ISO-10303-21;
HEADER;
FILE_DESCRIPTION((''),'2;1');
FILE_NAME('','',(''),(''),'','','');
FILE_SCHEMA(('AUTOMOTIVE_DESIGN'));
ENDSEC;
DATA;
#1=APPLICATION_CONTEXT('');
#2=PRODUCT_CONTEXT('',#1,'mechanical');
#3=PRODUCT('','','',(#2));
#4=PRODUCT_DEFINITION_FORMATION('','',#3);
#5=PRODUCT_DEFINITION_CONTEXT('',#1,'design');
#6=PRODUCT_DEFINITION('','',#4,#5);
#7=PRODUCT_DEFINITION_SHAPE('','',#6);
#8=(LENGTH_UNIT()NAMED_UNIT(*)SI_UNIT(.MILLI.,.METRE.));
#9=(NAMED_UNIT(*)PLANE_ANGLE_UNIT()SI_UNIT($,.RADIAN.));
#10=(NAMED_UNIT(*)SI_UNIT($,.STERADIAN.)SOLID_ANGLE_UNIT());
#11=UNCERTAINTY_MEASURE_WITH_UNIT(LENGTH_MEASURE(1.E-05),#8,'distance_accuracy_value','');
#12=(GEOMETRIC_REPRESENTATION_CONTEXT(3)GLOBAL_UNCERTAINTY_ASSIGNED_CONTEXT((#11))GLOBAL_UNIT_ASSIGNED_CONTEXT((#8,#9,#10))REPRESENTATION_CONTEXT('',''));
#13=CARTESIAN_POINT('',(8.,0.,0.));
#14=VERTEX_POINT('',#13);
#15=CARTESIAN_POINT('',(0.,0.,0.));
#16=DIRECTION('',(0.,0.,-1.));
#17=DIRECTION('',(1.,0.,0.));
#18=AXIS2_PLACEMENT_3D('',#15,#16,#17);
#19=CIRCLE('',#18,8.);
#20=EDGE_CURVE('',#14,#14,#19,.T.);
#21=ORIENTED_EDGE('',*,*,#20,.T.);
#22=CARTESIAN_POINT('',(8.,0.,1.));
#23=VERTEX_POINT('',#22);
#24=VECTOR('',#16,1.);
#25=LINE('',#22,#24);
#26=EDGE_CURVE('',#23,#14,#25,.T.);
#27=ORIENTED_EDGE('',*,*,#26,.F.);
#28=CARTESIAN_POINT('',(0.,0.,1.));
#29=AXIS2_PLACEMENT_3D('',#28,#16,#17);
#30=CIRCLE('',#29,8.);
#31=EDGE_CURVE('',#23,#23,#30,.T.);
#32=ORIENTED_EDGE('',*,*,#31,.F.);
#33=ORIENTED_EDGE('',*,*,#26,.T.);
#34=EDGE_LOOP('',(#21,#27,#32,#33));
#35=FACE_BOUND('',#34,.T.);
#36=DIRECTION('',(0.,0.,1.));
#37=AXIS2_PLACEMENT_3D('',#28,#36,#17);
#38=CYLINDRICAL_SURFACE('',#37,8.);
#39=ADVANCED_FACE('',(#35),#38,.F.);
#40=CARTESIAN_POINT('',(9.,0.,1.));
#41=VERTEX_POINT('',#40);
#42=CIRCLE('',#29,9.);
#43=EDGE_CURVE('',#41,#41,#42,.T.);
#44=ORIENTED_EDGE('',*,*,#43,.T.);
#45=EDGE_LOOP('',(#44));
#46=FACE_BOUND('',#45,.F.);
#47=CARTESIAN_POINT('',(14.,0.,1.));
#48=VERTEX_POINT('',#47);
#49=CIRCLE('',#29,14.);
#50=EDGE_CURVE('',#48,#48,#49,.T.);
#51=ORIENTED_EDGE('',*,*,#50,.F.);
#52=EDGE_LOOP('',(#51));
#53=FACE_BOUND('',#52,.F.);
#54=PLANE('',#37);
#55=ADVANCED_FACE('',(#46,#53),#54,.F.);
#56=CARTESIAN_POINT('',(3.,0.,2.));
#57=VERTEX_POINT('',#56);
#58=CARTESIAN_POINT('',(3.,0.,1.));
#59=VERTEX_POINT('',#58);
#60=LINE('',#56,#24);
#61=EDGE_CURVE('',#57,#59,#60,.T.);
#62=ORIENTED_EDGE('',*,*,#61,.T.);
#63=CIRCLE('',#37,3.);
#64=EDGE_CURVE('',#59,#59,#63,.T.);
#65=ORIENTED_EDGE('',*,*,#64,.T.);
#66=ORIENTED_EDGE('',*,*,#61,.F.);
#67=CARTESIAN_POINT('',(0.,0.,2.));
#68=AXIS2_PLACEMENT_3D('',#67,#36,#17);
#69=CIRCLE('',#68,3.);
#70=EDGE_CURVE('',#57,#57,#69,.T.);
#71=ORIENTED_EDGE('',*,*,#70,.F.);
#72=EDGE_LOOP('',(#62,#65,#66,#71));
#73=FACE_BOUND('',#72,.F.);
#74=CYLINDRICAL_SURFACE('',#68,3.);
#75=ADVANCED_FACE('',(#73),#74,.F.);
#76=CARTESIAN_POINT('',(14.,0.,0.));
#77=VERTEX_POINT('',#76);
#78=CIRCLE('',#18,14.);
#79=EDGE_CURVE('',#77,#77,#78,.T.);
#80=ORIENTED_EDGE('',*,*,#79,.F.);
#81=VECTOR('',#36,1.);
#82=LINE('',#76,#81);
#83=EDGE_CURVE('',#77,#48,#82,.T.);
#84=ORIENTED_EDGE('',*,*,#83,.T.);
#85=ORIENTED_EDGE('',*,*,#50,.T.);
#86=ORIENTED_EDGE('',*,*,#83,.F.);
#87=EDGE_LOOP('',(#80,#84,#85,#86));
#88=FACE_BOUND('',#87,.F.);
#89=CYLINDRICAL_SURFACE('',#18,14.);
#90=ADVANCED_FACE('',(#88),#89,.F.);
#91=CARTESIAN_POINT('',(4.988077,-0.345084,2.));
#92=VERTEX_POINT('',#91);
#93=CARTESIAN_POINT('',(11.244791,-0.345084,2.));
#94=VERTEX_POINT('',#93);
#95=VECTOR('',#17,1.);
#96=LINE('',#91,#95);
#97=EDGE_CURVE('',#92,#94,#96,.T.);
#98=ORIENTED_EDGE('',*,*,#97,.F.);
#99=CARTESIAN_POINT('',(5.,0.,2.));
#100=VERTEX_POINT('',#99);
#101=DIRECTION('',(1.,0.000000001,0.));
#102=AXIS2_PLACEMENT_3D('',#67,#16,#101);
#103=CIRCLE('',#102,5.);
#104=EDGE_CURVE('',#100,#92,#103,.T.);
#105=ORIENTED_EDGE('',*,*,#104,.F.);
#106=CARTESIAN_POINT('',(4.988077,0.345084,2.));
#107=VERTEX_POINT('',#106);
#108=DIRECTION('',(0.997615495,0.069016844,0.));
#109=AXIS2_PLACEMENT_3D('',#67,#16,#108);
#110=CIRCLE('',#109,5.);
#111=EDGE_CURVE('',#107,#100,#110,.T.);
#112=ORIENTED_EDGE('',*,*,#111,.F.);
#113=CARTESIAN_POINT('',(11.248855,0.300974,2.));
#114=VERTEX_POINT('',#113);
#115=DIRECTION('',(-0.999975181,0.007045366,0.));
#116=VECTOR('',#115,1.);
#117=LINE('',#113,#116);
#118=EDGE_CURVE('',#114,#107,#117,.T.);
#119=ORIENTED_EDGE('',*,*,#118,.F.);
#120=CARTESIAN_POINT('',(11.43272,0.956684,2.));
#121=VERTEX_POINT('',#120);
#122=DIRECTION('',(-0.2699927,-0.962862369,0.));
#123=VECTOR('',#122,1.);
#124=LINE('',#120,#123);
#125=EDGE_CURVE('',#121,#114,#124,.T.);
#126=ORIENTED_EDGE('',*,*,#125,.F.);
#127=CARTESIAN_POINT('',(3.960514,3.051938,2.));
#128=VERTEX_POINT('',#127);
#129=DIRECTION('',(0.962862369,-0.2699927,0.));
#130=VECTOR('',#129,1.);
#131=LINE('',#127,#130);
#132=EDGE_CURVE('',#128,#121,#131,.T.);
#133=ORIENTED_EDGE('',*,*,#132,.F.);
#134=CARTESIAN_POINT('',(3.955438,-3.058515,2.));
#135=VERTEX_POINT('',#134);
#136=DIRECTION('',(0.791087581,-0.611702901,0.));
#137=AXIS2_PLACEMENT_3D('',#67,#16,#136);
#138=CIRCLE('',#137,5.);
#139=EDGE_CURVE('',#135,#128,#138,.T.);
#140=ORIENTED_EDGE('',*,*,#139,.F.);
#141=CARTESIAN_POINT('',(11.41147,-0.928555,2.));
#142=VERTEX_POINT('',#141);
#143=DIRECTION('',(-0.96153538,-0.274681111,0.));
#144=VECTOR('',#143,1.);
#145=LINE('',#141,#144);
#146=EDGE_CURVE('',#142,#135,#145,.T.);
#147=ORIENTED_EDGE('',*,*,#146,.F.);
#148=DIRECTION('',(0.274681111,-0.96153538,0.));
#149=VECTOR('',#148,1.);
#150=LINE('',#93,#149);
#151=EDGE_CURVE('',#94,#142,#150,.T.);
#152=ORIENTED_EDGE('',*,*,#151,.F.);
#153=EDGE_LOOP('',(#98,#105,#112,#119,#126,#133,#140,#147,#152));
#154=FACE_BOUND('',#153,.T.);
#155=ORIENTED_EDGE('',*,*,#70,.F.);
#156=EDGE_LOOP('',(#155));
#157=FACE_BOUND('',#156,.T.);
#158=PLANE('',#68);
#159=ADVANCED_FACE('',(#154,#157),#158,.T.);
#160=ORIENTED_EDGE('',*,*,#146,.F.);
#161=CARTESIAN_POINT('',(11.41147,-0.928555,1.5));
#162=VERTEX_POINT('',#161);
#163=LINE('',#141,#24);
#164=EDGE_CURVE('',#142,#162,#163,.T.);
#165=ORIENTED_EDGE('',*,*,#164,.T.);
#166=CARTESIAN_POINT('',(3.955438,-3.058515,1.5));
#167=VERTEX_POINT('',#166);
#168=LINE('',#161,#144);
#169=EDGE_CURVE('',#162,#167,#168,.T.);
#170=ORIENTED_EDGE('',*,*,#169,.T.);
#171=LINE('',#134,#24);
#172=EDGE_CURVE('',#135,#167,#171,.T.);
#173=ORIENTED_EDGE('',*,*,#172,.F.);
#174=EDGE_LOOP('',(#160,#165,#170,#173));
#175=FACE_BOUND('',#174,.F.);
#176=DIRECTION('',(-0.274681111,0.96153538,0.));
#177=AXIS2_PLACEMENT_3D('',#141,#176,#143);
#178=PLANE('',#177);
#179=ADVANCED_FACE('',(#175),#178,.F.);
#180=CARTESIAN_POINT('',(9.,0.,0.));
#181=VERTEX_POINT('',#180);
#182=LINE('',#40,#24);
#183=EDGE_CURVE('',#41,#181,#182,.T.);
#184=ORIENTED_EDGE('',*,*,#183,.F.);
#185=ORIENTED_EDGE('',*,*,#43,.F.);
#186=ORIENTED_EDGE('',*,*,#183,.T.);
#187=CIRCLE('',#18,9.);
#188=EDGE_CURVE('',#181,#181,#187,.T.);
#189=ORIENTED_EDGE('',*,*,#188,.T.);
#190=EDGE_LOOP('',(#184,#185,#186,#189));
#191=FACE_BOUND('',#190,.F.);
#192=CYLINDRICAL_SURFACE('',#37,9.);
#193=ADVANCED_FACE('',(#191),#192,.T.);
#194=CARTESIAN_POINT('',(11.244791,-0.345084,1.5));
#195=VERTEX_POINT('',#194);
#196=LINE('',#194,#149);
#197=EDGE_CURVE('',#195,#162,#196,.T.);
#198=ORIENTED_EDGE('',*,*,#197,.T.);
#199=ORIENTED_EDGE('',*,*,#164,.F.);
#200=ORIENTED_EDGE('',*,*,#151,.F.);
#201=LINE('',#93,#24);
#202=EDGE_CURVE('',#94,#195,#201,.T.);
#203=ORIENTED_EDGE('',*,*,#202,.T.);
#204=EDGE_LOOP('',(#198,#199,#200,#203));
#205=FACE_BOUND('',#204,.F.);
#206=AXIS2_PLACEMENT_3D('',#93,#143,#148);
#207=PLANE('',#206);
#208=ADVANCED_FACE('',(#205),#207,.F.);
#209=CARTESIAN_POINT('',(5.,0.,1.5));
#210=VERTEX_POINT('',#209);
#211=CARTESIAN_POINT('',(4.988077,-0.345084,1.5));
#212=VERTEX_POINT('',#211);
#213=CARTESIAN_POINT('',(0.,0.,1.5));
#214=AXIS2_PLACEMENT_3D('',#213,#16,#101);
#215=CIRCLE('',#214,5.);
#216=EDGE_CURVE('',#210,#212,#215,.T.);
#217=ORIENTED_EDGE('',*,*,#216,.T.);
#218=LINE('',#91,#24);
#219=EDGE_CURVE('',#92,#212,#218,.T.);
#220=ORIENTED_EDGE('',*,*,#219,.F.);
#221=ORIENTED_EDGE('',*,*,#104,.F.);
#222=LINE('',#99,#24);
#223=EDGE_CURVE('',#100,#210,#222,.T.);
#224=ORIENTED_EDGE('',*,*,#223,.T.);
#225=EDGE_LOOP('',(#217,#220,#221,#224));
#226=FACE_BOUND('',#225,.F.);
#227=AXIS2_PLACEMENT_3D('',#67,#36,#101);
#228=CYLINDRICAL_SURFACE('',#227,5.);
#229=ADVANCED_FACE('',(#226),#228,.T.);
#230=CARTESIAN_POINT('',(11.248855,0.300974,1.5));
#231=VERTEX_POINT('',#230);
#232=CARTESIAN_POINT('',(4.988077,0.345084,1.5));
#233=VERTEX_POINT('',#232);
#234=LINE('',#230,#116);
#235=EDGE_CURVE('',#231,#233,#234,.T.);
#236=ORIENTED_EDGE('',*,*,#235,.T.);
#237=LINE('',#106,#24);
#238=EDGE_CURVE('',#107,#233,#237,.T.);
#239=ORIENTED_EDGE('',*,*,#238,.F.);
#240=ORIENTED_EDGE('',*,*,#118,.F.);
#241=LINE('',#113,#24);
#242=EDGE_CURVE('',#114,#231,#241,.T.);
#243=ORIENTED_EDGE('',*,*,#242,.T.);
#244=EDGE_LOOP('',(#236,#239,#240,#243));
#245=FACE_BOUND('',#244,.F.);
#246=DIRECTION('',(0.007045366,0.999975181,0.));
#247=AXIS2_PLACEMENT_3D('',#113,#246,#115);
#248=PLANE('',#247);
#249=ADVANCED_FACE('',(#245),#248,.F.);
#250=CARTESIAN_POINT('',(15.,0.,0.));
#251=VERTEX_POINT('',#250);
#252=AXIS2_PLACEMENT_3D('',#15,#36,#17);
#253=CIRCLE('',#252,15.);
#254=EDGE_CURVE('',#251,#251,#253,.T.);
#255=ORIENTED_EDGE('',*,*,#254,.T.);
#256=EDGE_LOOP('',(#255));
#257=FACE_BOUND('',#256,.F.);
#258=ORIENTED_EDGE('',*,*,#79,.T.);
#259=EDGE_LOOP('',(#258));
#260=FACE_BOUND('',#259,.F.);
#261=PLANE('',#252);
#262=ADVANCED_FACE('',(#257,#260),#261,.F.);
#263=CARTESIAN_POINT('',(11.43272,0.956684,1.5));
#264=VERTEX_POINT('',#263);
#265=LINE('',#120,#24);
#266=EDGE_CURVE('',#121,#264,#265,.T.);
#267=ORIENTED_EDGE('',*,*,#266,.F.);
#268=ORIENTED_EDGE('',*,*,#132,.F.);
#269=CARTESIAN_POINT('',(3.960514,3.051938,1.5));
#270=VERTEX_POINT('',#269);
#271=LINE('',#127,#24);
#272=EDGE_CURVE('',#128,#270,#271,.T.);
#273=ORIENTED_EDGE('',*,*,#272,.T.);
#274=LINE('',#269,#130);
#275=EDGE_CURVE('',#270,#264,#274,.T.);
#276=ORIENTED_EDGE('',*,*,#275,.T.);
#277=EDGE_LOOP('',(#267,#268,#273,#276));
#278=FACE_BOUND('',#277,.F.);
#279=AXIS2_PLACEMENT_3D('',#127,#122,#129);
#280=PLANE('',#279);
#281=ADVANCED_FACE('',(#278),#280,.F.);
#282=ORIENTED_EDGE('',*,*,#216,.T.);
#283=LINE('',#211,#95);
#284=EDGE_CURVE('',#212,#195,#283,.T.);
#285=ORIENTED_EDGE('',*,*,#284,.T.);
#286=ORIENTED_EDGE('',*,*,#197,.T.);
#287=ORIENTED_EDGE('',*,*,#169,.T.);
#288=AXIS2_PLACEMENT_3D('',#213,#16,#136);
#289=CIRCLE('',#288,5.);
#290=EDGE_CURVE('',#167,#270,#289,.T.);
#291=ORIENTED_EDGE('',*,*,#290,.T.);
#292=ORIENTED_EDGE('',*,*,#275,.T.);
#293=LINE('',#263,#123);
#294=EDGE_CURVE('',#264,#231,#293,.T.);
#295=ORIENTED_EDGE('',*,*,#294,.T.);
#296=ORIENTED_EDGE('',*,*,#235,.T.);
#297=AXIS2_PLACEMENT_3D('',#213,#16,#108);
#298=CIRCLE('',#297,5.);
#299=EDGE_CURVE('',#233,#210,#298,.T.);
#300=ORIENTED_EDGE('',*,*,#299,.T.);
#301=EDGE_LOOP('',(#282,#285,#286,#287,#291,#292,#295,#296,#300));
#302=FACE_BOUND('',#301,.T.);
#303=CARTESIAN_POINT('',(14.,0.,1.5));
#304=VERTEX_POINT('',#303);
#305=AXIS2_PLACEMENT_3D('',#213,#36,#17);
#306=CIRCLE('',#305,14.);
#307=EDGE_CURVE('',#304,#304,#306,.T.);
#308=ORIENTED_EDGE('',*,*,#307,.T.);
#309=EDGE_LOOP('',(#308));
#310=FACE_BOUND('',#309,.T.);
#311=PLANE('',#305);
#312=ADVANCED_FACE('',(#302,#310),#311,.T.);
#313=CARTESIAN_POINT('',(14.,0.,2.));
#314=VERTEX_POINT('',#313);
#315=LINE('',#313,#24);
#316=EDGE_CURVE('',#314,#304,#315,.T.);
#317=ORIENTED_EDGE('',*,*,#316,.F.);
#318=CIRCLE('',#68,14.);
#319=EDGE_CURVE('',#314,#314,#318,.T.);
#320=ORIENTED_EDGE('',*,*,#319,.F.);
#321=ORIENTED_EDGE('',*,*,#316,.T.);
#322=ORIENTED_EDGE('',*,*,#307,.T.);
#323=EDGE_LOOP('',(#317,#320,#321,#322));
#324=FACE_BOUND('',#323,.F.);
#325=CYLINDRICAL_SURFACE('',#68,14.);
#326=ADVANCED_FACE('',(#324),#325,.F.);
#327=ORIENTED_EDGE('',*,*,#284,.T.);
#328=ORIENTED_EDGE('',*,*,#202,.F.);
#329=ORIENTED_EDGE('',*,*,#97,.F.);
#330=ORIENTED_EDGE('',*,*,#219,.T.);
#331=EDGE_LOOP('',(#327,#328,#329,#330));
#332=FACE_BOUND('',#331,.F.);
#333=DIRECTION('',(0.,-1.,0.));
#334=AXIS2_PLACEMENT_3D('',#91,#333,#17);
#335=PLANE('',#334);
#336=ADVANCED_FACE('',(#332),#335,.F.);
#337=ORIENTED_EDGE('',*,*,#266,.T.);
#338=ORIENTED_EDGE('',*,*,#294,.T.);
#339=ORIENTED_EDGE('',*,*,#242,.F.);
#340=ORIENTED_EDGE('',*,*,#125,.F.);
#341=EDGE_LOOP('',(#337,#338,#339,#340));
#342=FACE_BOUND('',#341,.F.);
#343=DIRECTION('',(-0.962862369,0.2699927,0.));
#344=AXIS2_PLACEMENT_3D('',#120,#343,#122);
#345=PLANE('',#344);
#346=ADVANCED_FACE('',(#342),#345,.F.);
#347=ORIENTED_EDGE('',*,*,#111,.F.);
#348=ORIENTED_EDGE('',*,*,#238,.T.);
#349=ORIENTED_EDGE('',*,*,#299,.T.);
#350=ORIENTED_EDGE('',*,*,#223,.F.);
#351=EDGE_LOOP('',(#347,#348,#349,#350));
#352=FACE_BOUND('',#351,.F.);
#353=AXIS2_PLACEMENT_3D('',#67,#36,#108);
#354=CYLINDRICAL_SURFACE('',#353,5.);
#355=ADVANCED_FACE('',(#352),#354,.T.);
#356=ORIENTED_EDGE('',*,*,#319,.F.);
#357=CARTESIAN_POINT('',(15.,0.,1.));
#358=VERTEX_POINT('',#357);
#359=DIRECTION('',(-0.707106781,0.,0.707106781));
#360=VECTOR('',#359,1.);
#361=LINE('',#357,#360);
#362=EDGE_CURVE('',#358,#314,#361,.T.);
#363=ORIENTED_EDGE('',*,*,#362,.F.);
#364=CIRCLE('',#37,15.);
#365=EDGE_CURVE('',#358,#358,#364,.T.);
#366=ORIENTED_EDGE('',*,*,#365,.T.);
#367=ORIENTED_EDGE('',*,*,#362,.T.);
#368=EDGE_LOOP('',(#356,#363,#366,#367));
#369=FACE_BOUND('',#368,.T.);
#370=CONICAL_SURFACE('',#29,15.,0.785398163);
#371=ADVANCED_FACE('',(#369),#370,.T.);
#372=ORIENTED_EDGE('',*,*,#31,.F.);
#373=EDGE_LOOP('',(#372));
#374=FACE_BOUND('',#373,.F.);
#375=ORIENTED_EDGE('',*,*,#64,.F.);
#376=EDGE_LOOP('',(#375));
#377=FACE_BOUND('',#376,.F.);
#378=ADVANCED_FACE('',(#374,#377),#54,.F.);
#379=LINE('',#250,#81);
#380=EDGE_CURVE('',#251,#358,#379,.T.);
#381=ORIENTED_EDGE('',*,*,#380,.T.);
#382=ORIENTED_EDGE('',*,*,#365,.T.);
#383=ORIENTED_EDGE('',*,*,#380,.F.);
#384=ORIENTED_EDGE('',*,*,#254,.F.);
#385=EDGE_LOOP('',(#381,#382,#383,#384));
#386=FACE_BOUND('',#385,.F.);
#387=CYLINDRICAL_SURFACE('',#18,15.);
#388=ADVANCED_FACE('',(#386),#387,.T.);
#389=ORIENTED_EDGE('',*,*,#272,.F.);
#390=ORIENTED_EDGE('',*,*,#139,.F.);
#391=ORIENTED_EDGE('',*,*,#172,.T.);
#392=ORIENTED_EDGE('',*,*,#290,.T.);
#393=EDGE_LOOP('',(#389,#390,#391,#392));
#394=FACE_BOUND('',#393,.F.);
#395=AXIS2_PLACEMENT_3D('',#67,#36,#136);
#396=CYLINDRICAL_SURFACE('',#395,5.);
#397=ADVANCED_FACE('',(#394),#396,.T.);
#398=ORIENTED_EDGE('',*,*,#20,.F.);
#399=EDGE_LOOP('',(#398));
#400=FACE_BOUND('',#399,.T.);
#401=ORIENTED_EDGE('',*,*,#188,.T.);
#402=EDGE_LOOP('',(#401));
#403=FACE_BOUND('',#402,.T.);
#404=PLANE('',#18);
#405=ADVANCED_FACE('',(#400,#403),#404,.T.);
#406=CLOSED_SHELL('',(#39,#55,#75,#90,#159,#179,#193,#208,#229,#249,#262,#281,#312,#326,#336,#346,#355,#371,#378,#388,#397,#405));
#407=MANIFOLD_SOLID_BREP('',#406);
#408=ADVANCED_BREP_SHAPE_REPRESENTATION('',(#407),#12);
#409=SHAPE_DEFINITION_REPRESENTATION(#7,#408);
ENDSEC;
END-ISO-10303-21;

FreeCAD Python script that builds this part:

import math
import FreeCAD as App
import Part
import Sketcher
from FreeCAD import Vector


def edges_at(feature, points):
    """Names of the edges that pass closest to the given points."""
    edges = feature.Shape.Edges
    near = lambda p: min(range(len(edges)), key=lambda i: edges[i].distToShape(Part.Vertex(*p))[0])
    return sorted({f"Edge{near(p) + 1}" for p in points})

doc = App.newDocument("Part")
body = doc.addObject("PartDesign::Body", "Body")

sketch1 = body.newObject("Sketcher::SketchObject", "Sketch")
sketch1.AttachmentSupport = (doc.getObject("XY_Plane"), [""])
sketch1.MapMode = "FlatFace"
sketch1.addGeometry(Part.Circle(Vector(0, 0, 0), Vector(0, 0, 1), 15), False)
sketch1.addConstraint([
    Sketcher.Constraint("Coincident", 0, 3, -1, 1),
    Sketcher.Constraint("Diameter", 0, 30.0),
])
pad1 = body.newObject("PartDesign::Pad", "Pad")
pad1.Profile = sketch1
pad1.Length = 2

sketch2 = body.newObject("Sketcher::SketchObject", "Sketch001")
sketch2.AttachmentSupport = (doc.getObject("XY_Plane"), [""])
sketch2.MapMode = "FlatFace"
sketch2.addGeometry(Part.Circle(Vector(0, 0, 0), Vector(0, 0, 1), 14), False)
sketch2.addConstraint([
    Sketcher.Constraint("Coincident", 0, 3, -1, 1),
    Sketcher.Constraint("Diameter", 0, 28.0),
])
pocket1 = body.newObject("PartDesign::Pocket", "Pocket")
pocket1.Profile = sketch2
pocket1.Length = 1
pocket1.Reversed = True
doc.recompute()

chamfer = body.newObject("PartDesign::Chamfer", "Chamfer")
chamfer.Base = (pocket1, edges_at(pocket1, [(-15, 0, 2)]))
chamfer.Size = 1

sketch3 = body.newObject("Sketcher::SketchObject", "Sketch002")
sketch3.AttachmentSupport = (doc.getObject("XY_Plane"), [""])
sketch3.MapMode = "FlatFace"
sketch3.AttachmentOffset = App.Placement(Vector(0, 0, 2), App.Rotation())
sketch3.addGeometry(Part.Circle(Vector(0, 0, 0), Vector(0, 0, 1), 4), False)
sketch3.addConstraint([
    Sketcher.Constraint("Coincident", 0, 3, -1, 1),
    Sketcher.Constraint("Diameter", 0, 8.0),
])
pocket2 = body.newObject("PartDesign::Pocket", "Pocket001")
pocket2.Profile = sketch3
pocket2.Length = 25

sketch4 = body.newObject("Sketcher::SketchObject", "Sketch003")
sketch4.AttachmentSupport = (doc.getObject("XY_Plane"), [""])
sketch4.MapMode = "FlatFace"
sketch4.AttachmentOffset = App.Placement(Vector(0, 0, 2), App.Rotation())
sketch4.addGeometry([
    Part.Circle(Vector(0, 0, 0), Vector(0, 0, 1), 14),
    Part.LineSegment(Vector(11.248855, 0.300974, 0), Vector(4.988077, 0.345084, 0)),
    Part.ArcOfCircle(Part.Circle(Vector(0, 0, 0), Vector(0, 0, 1), 5), math.radians(0), math.radians(3.95752)),
    Part.ArcOfCircle(Part.Circle(Vector(0, 0, 0), Vector(0, 0, 1), 5), math.radians(-3.95752), math.radians(0)),
    Part.LineSegment(Vector(4.988077, -0.345084, 0), Vector(11.244791, -0.345084, 0)),
    Part.LineSegment(Vector(11.244791, -0.345084, 0), Vector(11.41147, -0.928555, 0)),
    Part.LineSegment(Vector(11.41147, -0.928555, 0), Vector(3.955438, -3.058515, 0)),
    Part.ArcOfCircle(Part.Circle(Vector(0, 0, 0), Vector(0, 0, 1), 5), math.radians(37.617537), math.radians(322.287264)),
    Part.LineSegment(Vector(3.960514, 3.051938, 0), Vector(11.43272, 0.956684, 0)),
    Part.LineSegment(Vector(11.43272, 0.956684, 0), Vector(11.248855, 0.300974, 0)),
], False)
sketch4.addConstraint([
    Sketcher.Constraint("Coincident", 1, 2, 2, 2),
    Sketcher.Constraint("Tangent", 2, 1, 3, 2),
    Sketcher.Constraint("Coincident", 3, 1, 4, 1),
    Sketcher.Constraint("Coincident", 4, 2, 5, 1),
    Sketcher.Constraint("Coincident", 5, 2, 6, 1),
    Sketcher.Constraint("Coincident", 6, 2, 7, 2),
    Sketcher.Constraint("Coincident", 7, 1, 8, 1),
    Sketcher.Constraint("Coincident", 8, 2, 9, 1),
    Sketcher.Constraint("Coincident", 9, 2, 1, 1),
    Sketcher.Constraint("Horizontal", 4),
    Sketcher.Constraint("Coincident", 0, 3, -1, 1),
    Sketcher.Constraint("Coincident", 2, 3, -1, 1),
    Sketcher.Constraint("Coincident", 7, 3, -1, 1),
    Sketcher.Constraint("Equal", 2, 3),
    Sketcher.Constraint("Equal", 3, 7),
    Sketcher.Constraint("PointOnObject", 2, 1, -1),
    Sketcher.Constraint("Perpendicular", 5, 6),
    Sketcher.Constraint("Perpendicular", 8, 9),
    Sketcher.Constraint("Vertical", 1, 2, 3, 1),
    Sketcher.Constraint("Diameter", 0, 28.0),
    Sketcher.Constraint("Radius", 2, 5.0),
    Sketcher.Constraint("Distance", 9, 0.681001),
    Sketcher.Constraint("Distance", 6, 7.754299),
    Sketcher.Constraint("DistanceY", 6, 2, 1, 2, 3.403599),
    Sketcher.Constraint("DistanceY", 1, 2, 8, 2, 0.6116),
    Sketcher.Constraint("Distance", 5, 0.606812),
    Sketcher.Constraint("Distance", 8, 7.760409),
    Sketcher.Constraint("DistanceX", 4, 1, 4, 2, 6.256713),
    Sketcher.Constraint("DistanceY", -1, 1, 7, 1, 3.051938),
])
pocket3 = body.newObject("PartDesign::Pocket", "Pocket002")
pocket3.Profile = sketch4
pocket3.Length = 0.5

sketch5 = body.newObject("Sketcher::SketchObject", "Sketch004")
sketch5.AttachmentSupport = (doc.getObject("XY_Plane"), [""])
sketch5.MapMode = "FlatFace"
sketch5.AttachmentOffset = App.Placement(Vector(0, 0, 2), App.Rotation())
sketch5.addGeometry([
    Part.Circle(Vector(0, 0, 0), Vector(0, 0, 1), 4),
    Part.Circle(Vector(0, 0, 0), Vector(0, 0, 1), 3),
], False)
sketch5.addConstraint([
    Sketcher.Constraint("Coincident", 0, 3, -1, 1),
    Sketcher.Constraint("Coincident", 1, 3, -1, 1),
    Sketcher.Constraint("Diameter", 0, 8.0),
    Sketcher.Constraint("Diameter", 1, 6.0),
])
pad2 = body.newObject("PartDesign::Pad", "Pad001")
pad2.Profile = sketch5
pad2.Length = 1
pad2.Reversed = True

sketch6 = body.newObject("Sketcher::SketchObject", "Sketch005")
sketch6.AttachmentSupport = (doc.getObject("XY_Plane"), [""])
sketch6.MapMode = "FlatFace"
sketch6.AttachmentOffset = App.Placement(Vector(0, 0, 1), App.Rotation())
sketch6.addGeometry([
    Part.Circle(Vector(0, 0, 0), Vector(0, 0, 1), 9),
    Part.Circle(Vector(0, 0, 0), Vector(0, 0, 1), 8),
], False)
sketch6.addConstraint([
    Sketcher.Constraint("Coincident", 0, 3, -1, 1),
    Sketcher.Constraint("Coincident", 1, 3, -1, 1),
    Sketcher.Constraint("Diameter", 0, 18.0),
    Sketcher.Constraint("Diameter", 1, 16.0),
])
pad3 = body.newObject("PartDesign::Pad", "Pad002")
pad3.Profile = sketch6
pad3.Length = 1
pad3.Reversed = True

doc.recompute()
